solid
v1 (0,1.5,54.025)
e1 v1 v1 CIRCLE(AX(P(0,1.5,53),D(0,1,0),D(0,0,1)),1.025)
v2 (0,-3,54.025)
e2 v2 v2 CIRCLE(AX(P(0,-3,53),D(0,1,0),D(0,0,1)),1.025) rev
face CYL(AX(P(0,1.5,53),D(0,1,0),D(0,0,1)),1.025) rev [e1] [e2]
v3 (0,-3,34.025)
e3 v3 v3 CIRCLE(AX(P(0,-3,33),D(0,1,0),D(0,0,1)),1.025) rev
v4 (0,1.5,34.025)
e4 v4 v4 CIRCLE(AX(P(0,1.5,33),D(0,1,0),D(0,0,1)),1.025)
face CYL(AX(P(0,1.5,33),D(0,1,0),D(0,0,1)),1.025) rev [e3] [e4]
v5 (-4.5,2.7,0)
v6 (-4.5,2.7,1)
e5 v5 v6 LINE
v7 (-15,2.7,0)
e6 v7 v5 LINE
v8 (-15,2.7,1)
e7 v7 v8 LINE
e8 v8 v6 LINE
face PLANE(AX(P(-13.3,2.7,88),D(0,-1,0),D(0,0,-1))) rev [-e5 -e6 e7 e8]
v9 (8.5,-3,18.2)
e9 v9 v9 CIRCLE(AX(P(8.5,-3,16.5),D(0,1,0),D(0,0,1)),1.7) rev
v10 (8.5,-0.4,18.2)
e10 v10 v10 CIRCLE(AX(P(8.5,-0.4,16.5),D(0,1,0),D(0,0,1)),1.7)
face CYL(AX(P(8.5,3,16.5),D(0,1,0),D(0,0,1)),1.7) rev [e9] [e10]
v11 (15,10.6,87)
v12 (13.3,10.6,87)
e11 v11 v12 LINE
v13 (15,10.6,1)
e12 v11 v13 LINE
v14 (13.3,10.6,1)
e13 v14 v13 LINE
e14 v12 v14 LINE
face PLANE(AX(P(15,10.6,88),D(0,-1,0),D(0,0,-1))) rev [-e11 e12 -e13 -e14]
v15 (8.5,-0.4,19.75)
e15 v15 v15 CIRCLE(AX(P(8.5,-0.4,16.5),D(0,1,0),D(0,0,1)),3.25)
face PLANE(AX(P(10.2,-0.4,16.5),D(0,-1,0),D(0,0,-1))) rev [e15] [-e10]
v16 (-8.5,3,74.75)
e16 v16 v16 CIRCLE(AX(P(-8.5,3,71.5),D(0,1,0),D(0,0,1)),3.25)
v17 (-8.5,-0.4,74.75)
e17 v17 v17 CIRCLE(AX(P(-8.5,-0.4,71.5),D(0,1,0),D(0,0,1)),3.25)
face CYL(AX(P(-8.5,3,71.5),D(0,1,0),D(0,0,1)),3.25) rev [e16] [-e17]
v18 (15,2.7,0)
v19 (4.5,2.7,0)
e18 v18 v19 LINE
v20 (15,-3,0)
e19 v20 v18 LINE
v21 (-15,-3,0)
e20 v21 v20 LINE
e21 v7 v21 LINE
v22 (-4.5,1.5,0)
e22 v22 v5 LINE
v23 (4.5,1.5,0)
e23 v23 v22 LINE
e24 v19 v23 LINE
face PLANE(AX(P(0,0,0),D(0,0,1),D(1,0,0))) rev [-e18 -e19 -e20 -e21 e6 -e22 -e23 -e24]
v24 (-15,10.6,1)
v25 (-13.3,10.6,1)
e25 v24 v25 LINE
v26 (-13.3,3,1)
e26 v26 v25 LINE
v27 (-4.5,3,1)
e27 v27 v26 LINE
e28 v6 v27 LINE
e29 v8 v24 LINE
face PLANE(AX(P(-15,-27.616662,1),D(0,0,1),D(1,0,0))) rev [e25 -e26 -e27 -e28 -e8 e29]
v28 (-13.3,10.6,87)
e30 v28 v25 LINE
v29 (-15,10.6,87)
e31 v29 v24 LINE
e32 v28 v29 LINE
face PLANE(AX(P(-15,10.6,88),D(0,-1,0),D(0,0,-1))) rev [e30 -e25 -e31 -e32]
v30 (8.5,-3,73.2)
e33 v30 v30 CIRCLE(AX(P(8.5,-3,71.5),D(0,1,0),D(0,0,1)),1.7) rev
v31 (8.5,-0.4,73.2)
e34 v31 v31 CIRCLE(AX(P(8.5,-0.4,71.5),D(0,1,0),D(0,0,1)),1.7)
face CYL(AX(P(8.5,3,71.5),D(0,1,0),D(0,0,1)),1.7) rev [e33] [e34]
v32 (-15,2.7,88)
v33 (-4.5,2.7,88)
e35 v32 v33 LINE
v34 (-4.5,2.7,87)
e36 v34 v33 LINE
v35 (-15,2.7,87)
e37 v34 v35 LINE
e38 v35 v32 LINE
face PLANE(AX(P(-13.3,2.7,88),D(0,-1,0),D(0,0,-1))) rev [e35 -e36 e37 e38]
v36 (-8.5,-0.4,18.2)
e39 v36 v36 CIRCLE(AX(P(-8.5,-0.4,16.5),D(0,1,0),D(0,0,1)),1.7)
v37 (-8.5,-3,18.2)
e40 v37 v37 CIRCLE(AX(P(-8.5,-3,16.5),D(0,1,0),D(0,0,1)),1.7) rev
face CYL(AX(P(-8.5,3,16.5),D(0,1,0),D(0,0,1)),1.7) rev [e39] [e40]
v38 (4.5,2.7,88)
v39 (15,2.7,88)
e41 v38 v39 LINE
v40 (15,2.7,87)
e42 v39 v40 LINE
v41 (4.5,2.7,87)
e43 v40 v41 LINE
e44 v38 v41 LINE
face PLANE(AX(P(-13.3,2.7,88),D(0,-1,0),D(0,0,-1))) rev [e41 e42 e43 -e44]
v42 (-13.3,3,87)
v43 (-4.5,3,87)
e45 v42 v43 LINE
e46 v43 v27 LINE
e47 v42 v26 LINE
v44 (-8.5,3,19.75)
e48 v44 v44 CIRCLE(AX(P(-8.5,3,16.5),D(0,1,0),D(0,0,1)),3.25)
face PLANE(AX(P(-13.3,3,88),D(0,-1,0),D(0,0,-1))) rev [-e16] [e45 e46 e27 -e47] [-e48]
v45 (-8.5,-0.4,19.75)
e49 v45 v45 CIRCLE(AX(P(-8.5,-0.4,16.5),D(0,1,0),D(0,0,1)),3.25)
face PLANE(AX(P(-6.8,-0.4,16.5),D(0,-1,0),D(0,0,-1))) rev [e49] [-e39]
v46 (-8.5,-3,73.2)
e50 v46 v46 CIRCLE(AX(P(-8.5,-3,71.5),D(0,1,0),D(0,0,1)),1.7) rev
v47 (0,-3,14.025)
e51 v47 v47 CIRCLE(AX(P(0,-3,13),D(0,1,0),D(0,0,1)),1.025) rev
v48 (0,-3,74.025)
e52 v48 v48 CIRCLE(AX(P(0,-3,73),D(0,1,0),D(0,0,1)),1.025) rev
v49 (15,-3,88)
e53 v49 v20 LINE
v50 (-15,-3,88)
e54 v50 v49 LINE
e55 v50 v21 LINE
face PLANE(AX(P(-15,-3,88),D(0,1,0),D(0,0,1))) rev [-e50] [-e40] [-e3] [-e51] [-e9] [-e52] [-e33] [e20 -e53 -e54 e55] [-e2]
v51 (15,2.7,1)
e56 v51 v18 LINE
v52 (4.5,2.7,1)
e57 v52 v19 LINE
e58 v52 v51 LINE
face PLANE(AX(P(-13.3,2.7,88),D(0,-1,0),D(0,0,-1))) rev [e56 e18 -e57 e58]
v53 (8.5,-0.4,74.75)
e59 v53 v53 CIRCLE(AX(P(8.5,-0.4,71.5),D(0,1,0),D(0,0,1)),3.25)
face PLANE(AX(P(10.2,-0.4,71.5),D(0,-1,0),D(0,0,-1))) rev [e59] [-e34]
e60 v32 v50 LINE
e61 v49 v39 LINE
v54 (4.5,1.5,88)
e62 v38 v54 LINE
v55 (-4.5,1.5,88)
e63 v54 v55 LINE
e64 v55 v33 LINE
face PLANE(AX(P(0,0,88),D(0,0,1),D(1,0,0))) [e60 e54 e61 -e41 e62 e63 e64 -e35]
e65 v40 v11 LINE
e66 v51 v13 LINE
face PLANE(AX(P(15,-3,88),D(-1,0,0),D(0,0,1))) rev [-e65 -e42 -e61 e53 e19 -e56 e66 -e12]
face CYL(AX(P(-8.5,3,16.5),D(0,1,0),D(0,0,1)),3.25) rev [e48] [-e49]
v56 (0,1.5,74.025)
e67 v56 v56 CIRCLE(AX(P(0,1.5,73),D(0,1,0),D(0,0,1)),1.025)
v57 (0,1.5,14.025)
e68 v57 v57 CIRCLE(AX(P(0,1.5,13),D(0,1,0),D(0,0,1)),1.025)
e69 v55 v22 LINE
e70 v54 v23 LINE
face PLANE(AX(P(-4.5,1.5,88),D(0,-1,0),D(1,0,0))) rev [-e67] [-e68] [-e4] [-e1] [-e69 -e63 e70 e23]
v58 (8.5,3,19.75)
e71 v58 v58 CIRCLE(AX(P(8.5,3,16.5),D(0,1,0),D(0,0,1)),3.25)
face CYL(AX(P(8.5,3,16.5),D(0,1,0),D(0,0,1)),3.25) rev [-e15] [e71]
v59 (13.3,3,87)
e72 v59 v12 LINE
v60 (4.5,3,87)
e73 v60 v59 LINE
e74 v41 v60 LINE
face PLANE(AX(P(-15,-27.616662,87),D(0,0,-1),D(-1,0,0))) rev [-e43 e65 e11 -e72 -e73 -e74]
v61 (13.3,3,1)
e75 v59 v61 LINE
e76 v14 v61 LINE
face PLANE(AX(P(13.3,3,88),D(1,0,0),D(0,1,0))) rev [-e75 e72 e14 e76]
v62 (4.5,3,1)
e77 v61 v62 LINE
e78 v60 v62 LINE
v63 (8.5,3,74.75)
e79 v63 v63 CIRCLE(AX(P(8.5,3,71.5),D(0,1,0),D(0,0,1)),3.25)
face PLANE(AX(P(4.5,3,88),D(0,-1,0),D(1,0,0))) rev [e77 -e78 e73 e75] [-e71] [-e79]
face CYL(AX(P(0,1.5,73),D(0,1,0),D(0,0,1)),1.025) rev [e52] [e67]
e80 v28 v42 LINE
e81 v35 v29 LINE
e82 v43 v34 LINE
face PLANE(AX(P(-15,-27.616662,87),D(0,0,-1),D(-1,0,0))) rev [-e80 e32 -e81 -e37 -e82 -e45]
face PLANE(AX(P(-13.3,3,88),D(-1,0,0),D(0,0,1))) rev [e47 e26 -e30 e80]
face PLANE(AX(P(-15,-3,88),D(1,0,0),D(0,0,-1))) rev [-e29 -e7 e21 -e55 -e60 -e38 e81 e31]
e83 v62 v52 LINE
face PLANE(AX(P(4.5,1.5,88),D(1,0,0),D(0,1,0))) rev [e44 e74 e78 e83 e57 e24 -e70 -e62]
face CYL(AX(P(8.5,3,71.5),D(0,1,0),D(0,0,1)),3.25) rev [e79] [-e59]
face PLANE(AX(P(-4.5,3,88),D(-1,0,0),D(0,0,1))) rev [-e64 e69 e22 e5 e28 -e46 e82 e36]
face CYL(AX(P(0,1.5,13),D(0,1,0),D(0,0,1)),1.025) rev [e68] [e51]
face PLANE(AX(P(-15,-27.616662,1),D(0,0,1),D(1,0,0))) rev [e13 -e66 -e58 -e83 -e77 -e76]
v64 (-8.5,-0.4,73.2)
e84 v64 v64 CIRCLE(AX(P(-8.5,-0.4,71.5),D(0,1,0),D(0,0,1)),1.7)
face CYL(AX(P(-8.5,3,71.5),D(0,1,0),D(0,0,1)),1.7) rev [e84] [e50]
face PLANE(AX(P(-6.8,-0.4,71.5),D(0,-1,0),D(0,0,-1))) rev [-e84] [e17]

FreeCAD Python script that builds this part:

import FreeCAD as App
import Part
import Sketcher
from FreeCAD import Vector
Q = App.Units.Quantity

doc = App.newDocument("Part")
body = doc.addObject("PartDesign::Body", "Body")

sketch1 = doc.addObject("Sketcher::SketchObject", "Sketch")
body.addObject(sketch1)
sketch1.AttachmentSupport = (doc.XY_Plane, [""])
sketch1.MapMode = "FlatFace"
sketch1.addGeometry([
    Part.LineSegment(Vector(-15, -3, 0), Vector(15, -3, 0)),
    Part.LineSegment(Vector(15, -3, 0), Vector(15, 10.6, 0)),
    Part.LineSegment(Vector(15, 10.6, 0), Vector(13.3, 10.6, 0)),
    Part.LineSegment(Vector(13.3, 10.6, 0), Vector(13.3, 3, 0)),
    Part.LineSegment(Vector(13.3, 3, 0), Vector(4.5, 3, 0)),
    Part.LineSegment(Vector(4.5, 3, 0), Vector(4.5, 1.5, 0)),
    Part.LineSegment(Vector(4.5, 1.5, 0), Vector(-4.5, 1.5, 0)),
    Part.LineSegment(Vector(-4.5, 1.5, 0), Vector(-4.5, 3, 0)),
    Part.LineSegment(Vector(-4.5, 3, 0), Vector(-13.3, 3, 0)),
    Part.LineSegment(Vector(-13.3, 3, 0), Vector(-13.3, 10.6, 0)),
    Part.LineSegment(Vector(-13.3, 10.6, 0), Vector(-15, 10.6, 0)),
    Part.LineSegment(Vector(-15, 10.6, 0), Vector(-15, -3, 0)),
], False)
sketch1.addConstraint([
    Sketcher.Constraint("Coincident", 0, 2, 1, 1),
    Sketcher.Constraint("Coincident", 1, 2, 2, 1),
    Sketcher.Constraint("Coincident", 2, 2, 3, 1),
    Sketcher.Constraint("Coincident", 3, 2, 4, 1),
    Sketcher.Constraint("Coincident", 4, 2, 5, 1),
    Sketcher.Constraint("Coincident", 5, 2, 6, 1),
    Sketcher.Constraint("Coincident", 6, 2, 7, 1),
    Sketcher.Constraint("Coincident", 7, 2, 8, 1),
    Sketcher.Constraint("Coincident", 8, 2, 9, 1),
    Sketcher.Constraint("Coincident", 9, 2, 10, 1),
    Sketcher.Constraint("Coincident", 10, 2, 11, 1),
    Sketcher.Constraint("Coincident", 11, 2, 0, 1),
    Sketcher.Constraint("Horizontal", 0),
    Sketcher.Constraint("Vertical", 1),
    Sketcher.Constraint("Horizontal", 2),
    Sketcher.Constraint("Vertical", 3),
    Sketcher.Constraint("Horizontal", 4),
    Sketcher.Constraint("Vertical", 5),
    Sketcher.Constraint("Horizontal", 6),
    Sketcher.Constraint("Vertical", 7),
    Sketcher.Constraint("Horizontal", 8),
    Sketcher.Constraint("Vertical", 9),
    Sketcher.Constraint("Horizontal", 10),
    Sketcher.Constraint("Vertical", 11),
    Sketcher.Constraint("Symmetric", 4, 2, 7, 2, -2),
    Sketcher.Constraint("Symmetric", 2, 2, 9, 2, -2),
    Sketcher.Constraint("Equal", 2, 10),
    Sketcher.Constraint("DistanceX", 0, 1, 0, 2, Q("30 mm")),
    Sketcher.Constraint("DistanceX", 6, 2, 6, 1, Q("9 mm")),
    Sketcher.Constraint("DistanceX", 2, 2, 2, 1, Q("1.7 mm")),
    Sketcher.Constraint("DistanceY", 1, 1, 1, 2, Q("13.6 mm")),
    Sketcher.Constraint("DistanceY", 3, 2, 3, 1, Q("7.6 mm")),
    Sketcher.Constraint("DistanceY", 5, 2, 5, 1, Q("1.5 mm")),
    Sketcher.Constraint("DistanceY", 0, 2, -1, 1, Q("3 mm")),
])
pad1 = doc.addObject("PartDesign::Pad", "Pad")
body.addObject(pad1)
pad1.Profile = sketch1
pad1.Length = 88

sketch2 = doc.addObject("Sketcher::SketchObject", "Sketch001")
body.addObject(sketch2)
sketch2.AttachmentSupport = (doc.XZ_Plane, [""])
sketch2.MapMode = "FlatFace"
sketch2.AttachmentOffset = App.Placement(Vector(0, 0, -10.6), App.Rotation())
sketch2.addGeometry([
    Part.LineSegment(Vector(-15, 87, 0), Vector(-15, 88, 0)),
    Part.LineSegment(Vector(-15, 88, 0), Vector(15, 88, 0)),
    Part.LineSegment(Vector(15, 88, 0), Vector(15, 87, 0)),
    Part.LineSegment(Vector(15, 87, 0), Vector(-15, 87, 0)),
    Part.LineSegment(Vector(-15, 0, 0), Vector(-15, 1, 0)),
    Part.LineSegment(Vector(-15, 1, 0), Vector(15, 1, 0)),
    Part.LineSegment(Vector(15, 1, 0), Vector(15, 0, 0)),
    Part.LineSegment(Vector(15, 0, 0), Vector(-15, 0, 0)),
], False)
sketch2.addConstraint([
    Sketcher.Constraint("Coincident", 0, 2, 1, 1),
    Sketcher.Constraint("Coincident", 1, 2, 2, 1),
    Sketcher.Constraint("Coincident", 2, 2, 3, 1),
    Sketcher.Constraint("Coincident", 3, 2, 0, 1),
    Sketcher.Constraint("Coincident", 4, 2, 5, 1),
    Sketcher.Constraint("Coincident", 5, 2, 6, 1),
    Sketcher.Constraint("Coincident", 6, 2, 7, 1),
    Sketcher.Constraint("Coincident", 7, 2, 4, 1),
    Sketcher.Constraint("Vertical", 0),
    Sketcher.Constraint("Horizontal", 1),
    Sketcher.Constraint("Vertical", 2),
    Sketcher.Constraint("Horizontal", 3),
    Sketcher.Constraint("Vertical", 4),
    Sketcher.Constraint("Horizontal", 5),
    Sketcher.Constraint("Vertical", 6),
    Sketcher.Constraint("Horizontal", 7),
    Sketcher.Constraint("Symmetric", 6, 2, 7, 2, -1, 1),
    Sketcher.Constraint("Vertical", 3, 2, 4, 2),
    Sketcher.Constraint("Vertical", 2, 2, 5, 2),
    Sketcher.Constraint("Equal", 2, 4),
    Sketcher.Constraint("DistanceX", 1, 1, 1, 2, Q("30 mm")),
    Sketcher.Constraint("DistanceY", 0, 1, 0, 2, Q("1 mm")),
    Sketcher.Constraint("DistanceY", -1, 1, 0, 2, Q("88 mm")),
])
pocket1 = doc.addObject("PartDesign::Pocket", "Pocket")
body.addObject(pocket1)
pocket1.Profile = sketch2
pocket1.Length = 7.9
pocket1.Reversed = True

sketch3 = doc.addObject("Sketcher::SketchObject", "Sketch002")
body.addObject(sketch3)
sketch3.AttachmentSupport = (doc.XZ_Plane, [""])
sketch3.MapMode = "FlatFace"
sketch3.AttachmentOffset = App.Placement(Vector(0, 0, -3), App.Rotation())
sketch3.addGeometry([
    Part.Circle(Vector(-8.5, 71.5, 0), Vector(0, 0, 1), 1.7),
    Part.Circle(Vector(8.5, 71.5, 0), Vector(0, 0, 1), 1.7),
    Part.Circle(Vector(8.5, 16.5, 0), Vector(0, 0, 1), 1.7),
    Part.Circle(Vector(-8.5, 16.5, 0), Vector(0, 0, 1), 1.7),
], False)
sketch3.addConstraint([
    Sketcher.Constraint("Equal", 0, 1),
    Sketcher.Constraint("Equal", 1, 2),
    Sketcher.Constraint("Equal", 2, 3),
    Sketcher.Constraint("Symmetric", 0, 3, 1, 3, -2),
    Sketcher.Constraint("Symmetric", 2, 3, 3, 3, -2),
    Sketcher.Constraint("Vertical", 1, 3, 2, 3),
    Sketcher.Constraint("Diameter", 0, Q("3.4 mm")),
    Sketcher.Constraint("DistanceX", 0, 3, 1, 3, Q("17 mm")),
    Sketcher.Constraint("DistanceY", 2, 3, 1, 3, Q("55 mm")),
    Sketcher.Constraint("DistanceY", -1, 1, 0, 3, Q("71.5 mm")),
])
doc.recompute()
hole = doc.addObject("PartDesign::Hole", "Hole")
body.addObject(hole)
hole.Profile = sketch3
hole.ThreadType = "None"
hole.Diameter = 3.4
hole.DepthType = "Dimension"
hole.Depth = 6
hole.DrillPoint = "Angled"
hole.DrillPointAngle = 118
hole.HoleCutType = "Counterbore"
hole.HoleCutDiameter = 6.5
hole.HoleCutDepth = 3.4
hole.Reversed = True

sketch4 = doc.addObject("Sketcher::SketchObject", "Sketch003")
body.addObject(sketch4)
sketch4.AttachmentSupport = (doc.YZ_Plane, [""])
sketch4.MapMode = "FlatFace"
sketch4.addGeometry([
    Part.LineSegment(Vector(-3.615882, 73, 0), Vector(1.5, 73, 0)),
    Part.LineSegment(Vector(1.5, 73, 0), Vector(1.5, 74.025, 0)),
    Part.LineSegment(Vector(1.5, 74.025, 0), Vector(-3, 74.025, 0)),
    Part.LineSegment(Vector(-3, 74.025, 0), Vector(-3.615882, 73, 0)),
], False)
sketch4.addGeometry(Part.LineSegment(Vector(1.5, 73, 0), Vector(-3.615882, 73, 0)), True)
sketch4.addConstraint([
    Sketcher.Constraint("Coincident", 0, 2, 1, 1),
    Sketcher.Constraint("Coincident", 1, 2, 2, 1),
    Sketcher.Constraint("Coincident", 2, 2, 3, 1),
    Sketcher.Constraint("Coincident", 3, 2, 0, 1),
    Sketcher.Constraint("Horizontal", 0),
    Sketcher.Constraint("Vertical", 1),
    Sketcher.Constraint("Horizontal", 2),
    Sketcher.Constraint("Horizontal", 4),
    Sketcher.Constraint("Coincident", 4, 1, 0, 2),
    Sketcher.Constraint("Equal", 0, 4),
    Sketcher.Constraint("Angle", 3, Q("-121 deg")),
    Sketcher.Constraint("DistanceX", 2, 2, 2, 1, Q("4.5 mm")),
    Sketcher.Constraint("DistanceY", -1, 1, 0, 2, Q("73 mm")),
    Sketcher.Constraint("DistanceX", 2, 2, -1, 1, Q("3 mm")),
    Sketcher.Constraint("DistanceY", 1, 1, 1, 2, Q("1.025 mm")),
])
groove = doc.addObject("PartDesign::Groove", "Groove")
body.addObject(groove)
groove.Profile = sketch4
groove.ReferenceAxis = (sketch4, ["Axis0"])
groove.Angle = 360
doc.recompute()

linearpattern = doc.addObject("PartDesign::LinearPattern", "LinearPattern")
body.addObject(linearpattern)
linearpattern.Originals = [groove]
linearpattern.Direction = (doc.Z_Axis, [""])
linearpattern.Mode = "offset"
linearpattern.Offset = 20
linearpattern.Occurrences = 4
linearpattern.Reversed = True
body.Tip = linearpattern

doc.recompute()
